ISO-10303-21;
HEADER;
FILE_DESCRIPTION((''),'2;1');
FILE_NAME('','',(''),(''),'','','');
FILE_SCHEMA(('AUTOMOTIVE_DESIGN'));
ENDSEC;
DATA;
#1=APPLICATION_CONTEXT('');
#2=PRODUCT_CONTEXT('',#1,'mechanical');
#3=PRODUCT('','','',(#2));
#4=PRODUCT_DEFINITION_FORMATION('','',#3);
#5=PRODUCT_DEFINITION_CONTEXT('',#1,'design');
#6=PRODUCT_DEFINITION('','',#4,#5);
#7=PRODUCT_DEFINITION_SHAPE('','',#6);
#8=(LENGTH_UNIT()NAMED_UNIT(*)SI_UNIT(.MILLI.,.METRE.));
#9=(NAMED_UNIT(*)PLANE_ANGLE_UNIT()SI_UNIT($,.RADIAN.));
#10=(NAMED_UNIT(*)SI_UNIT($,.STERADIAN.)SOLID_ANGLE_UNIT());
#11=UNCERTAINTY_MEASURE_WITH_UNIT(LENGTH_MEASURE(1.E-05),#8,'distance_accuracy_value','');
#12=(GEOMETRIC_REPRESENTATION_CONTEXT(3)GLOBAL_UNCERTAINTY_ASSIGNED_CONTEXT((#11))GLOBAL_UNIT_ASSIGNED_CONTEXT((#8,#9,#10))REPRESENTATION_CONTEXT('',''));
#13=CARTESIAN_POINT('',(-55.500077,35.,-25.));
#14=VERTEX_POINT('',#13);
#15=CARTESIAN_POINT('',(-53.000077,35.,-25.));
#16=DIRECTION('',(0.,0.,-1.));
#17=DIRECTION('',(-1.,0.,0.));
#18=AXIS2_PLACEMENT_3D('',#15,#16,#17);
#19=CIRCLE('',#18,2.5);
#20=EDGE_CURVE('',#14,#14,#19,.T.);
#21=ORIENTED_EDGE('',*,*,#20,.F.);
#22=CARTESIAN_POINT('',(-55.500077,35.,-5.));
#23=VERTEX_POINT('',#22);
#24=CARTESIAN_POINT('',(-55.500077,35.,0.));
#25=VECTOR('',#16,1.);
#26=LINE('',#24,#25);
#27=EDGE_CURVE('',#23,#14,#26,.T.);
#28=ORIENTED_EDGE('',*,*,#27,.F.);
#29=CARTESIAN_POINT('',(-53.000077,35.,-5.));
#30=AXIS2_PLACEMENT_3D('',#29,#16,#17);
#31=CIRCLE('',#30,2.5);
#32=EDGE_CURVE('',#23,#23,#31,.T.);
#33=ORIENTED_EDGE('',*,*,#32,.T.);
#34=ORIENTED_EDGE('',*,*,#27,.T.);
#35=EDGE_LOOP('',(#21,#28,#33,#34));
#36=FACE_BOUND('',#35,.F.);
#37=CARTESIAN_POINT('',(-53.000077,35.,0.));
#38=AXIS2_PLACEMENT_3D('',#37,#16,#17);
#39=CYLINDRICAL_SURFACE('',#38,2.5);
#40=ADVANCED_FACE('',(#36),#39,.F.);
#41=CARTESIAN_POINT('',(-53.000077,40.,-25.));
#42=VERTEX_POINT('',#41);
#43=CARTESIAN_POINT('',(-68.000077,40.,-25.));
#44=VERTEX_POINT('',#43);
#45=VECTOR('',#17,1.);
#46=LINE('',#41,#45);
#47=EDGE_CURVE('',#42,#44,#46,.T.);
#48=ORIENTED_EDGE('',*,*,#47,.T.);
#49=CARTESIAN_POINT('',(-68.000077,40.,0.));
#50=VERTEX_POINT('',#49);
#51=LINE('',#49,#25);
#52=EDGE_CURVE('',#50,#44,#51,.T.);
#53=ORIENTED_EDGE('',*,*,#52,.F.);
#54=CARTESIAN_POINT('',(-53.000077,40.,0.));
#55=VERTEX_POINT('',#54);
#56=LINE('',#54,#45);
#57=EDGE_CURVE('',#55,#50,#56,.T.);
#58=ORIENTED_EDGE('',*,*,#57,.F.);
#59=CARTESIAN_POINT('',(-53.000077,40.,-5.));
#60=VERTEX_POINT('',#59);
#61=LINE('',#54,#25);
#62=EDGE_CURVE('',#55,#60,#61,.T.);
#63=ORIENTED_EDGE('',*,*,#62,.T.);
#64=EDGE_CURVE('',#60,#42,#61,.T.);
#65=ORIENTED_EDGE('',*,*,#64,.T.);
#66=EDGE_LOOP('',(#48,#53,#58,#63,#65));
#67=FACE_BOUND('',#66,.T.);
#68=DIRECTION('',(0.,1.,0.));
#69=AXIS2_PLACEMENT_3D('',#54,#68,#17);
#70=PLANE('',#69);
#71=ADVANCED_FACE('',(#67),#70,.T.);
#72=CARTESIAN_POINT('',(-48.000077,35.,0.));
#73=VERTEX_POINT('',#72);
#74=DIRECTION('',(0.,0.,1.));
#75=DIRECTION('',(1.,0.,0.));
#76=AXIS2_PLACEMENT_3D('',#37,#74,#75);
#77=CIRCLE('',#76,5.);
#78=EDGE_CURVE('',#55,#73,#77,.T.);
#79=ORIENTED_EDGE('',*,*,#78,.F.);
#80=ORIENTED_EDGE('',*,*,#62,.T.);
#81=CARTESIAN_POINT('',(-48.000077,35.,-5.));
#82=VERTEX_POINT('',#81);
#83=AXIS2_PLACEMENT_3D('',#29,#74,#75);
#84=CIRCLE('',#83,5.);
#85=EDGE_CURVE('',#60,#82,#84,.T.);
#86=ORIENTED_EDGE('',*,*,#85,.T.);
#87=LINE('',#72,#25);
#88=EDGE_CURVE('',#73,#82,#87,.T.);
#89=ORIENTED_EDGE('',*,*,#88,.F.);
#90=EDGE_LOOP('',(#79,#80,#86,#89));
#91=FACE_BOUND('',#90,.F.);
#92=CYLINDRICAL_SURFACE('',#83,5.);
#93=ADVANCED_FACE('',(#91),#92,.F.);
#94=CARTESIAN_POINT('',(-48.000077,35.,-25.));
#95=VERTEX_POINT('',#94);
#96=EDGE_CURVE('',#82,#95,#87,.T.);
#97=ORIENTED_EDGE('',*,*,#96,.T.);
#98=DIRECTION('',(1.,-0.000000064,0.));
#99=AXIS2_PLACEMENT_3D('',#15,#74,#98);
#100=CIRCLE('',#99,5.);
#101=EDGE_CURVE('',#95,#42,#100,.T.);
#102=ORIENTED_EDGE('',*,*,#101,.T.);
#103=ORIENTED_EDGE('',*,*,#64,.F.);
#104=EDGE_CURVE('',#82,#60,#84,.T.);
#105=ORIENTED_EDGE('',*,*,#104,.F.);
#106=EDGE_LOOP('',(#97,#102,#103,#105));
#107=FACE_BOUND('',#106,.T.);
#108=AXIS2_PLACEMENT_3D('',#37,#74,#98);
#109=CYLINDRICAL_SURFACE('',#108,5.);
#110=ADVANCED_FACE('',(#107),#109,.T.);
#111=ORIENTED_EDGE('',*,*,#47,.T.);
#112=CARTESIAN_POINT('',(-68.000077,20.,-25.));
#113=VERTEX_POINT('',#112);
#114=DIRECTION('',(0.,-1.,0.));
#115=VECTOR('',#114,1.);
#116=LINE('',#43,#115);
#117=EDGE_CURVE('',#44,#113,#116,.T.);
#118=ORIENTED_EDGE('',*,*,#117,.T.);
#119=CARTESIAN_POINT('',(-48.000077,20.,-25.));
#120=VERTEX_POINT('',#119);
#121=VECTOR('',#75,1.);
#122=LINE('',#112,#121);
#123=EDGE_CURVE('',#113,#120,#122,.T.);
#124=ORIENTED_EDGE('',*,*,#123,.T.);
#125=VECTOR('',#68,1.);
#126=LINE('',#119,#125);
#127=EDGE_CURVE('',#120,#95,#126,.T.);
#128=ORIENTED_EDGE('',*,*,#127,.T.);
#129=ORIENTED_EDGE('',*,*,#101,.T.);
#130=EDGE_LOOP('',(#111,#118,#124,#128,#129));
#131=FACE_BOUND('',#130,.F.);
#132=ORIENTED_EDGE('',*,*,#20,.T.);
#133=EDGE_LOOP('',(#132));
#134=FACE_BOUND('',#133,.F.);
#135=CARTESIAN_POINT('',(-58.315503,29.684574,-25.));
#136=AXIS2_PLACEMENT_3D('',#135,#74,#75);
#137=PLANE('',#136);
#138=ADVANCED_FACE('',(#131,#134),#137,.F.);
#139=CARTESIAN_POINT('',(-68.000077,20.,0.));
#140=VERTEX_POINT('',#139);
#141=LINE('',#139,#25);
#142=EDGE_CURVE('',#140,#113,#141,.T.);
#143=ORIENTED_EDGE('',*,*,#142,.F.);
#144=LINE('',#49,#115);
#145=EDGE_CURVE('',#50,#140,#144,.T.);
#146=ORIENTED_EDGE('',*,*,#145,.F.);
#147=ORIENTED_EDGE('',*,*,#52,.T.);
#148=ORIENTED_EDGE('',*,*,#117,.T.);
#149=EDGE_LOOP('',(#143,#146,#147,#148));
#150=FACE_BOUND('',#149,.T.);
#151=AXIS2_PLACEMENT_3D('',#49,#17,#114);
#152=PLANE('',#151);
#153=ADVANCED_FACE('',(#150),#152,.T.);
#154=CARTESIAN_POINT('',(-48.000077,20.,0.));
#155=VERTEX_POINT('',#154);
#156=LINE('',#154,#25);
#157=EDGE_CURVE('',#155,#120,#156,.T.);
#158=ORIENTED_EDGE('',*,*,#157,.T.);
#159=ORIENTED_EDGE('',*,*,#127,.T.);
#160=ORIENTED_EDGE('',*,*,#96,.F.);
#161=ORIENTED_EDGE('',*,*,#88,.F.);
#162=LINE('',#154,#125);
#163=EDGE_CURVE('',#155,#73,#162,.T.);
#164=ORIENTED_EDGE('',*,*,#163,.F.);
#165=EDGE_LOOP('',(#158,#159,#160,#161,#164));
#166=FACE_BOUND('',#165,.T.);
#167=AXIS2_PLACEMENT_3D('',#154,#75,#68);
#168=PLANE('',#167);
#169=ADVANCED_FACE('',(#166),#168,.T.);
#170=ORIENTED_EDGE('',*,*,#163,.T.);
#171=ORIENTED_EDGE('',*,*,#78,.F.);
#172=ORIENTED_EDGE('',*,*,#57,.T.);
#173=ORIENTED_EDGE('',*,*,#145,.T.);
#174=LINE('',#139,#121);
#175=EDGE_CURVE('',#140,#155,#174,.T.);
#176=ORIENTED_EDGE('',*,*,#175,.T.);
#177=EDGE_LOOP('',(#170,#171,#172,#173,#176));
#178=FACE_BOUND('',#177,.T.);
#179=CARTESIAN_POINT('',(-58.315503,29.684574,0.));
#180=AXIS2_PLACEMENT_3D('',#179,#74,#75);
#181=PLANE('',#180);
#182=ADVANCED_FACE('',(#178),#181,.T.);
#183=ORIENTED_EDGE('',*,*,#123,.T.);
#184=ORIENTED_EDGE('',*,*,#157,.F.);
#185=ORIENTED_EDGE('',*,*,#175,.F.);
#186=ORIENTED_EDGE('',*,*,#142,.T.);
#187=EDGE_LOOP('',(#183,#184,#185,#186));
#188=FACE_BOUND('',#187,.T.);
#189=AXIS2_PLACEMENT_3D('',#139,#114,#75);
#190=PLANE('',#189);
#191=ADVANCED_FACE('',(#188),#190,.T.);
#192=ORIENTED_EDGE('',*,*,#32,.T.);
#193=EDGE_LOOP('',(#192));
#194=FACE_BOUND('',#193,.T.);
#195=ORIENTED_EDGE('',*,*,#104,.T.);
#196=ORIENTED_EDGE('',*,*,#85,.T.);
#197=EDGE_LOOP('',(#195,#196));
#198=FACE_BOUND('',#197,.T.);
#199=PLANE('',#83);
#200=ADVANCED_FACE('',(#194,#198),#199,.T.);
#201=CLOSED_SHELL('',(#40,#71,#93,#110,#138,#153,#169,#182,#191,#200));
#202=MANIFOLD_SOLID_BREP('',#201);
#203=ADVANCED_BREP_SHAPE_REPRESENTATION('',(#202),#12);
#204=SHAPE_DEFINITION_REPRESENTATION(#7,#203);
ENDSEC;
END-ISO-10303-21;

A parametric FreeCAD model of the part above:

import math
import FreeCAD as App
import Part
import Sketcher
Q = App.Units.Quantity

doc = App.newDocument("Part")
body = doc.addObject("PartDesign::Body", "Body")

# Sketch on XY plane
sketch1 = body.newObject("Sketcher::SketchObject", "Sketch")
sketch1.AttachmentSupport = (doc.getObject("XY_Plane"), [""])
sketch1.MapMode = "FlatFace"
sketch1.addGeometry([
    Part.LineSegment(App.Vector(-53, 40, 0), App.Vector(-68, 40, 0)),  # 0
    Part.LineSegment(App.Vector(-68, 40, 0), App.Vector(-68, 20, 0)),  # 1
    Part.LineSegment(App.Vector(-68, 20, 0), App.Vector(-48, 20, 0)),  # 2
    Part.LineSegment(App.Vector(-48, 20, 0), App.Vector(-48, 35, 0)),  # 3
    Part.ArcOfCircle(Part.Circle(App.Vector(-53, 35, 0), App.Vector(0, 0, 1), 5), math.radians(0), math.radians(90)),  # 4
], False)
sketch1.addConstraint([
    Sketcher.Constraint("Coincident", 0, 2, 1, 1),
    Sketcher.Constraint("Coincident", 1, 2, 2, 1),
    Sketcher.Constraint("Coincident", 2, 2, 3, 1),
    Sketcher.Constraint("Tangent", 3, 2, 4, 1),
    Sketcher.Constraint("Tangent", 4, 2, 0, 1),
    Sketcher.Constraint("Horizontal", 0),
    Sketcher.Constraint("Vertical", 1),
    Sketcher.Constraint("Horizontal", 2),
    Sketcher.Constraint("Vertical", 3),
    Sketcher.Constraint("Equal", 2, 1),
    Sketcher.Constraint("Radius", 4, Q("5 mm")),
    Sketcher.Constraint("DistanceX", 0, 2, 0, 1, Q("15 mm")),
    Sketcher.Constraint("DistanceY", -1, 1, 4, 3, Q("35 mm")),
    Sketcher.Constraint("DistanceX", 4, 3, -1, 1, Q("53.000077 mm")),
])
pad1 = body.newObject("PartDesign::Pad", "Pad")
pad1.Profile = sketch1
pad1.Length = 25
pad1.Reversed = True

# Sketch on XY plane
sketch2 = body.newObject("Sketcher::SketchObject", "Sketch001")
sketch2.AttachmentSupport = (doc.getObject("XY_Plane"), [""])
sketch2.MapMode = "FlatFace"
sketch2.addGeometry(Part.Circle(App.Vector(-53, 35, 0), App.Vector(0, 0, 1), 2.5), False)
sketch2.addConstraint([
    Sketcher.Constraint("Diameter", 0, Q("5 mm")),
    Sketcher.Constraint("DistanceY", -1, 1, 0, 3, Q("35 mm")),
    Sketcher.Constraint("DistanceX", 0, 3, -1, 1, Q("53.000077 mm")),
])
doc.recompute()
hole = body.newObject("PartDesign::Hole", "Hole")
hole.Profile = sketch2
hole.ThreadType = "None"
hole.Diameter = 5
hole.DepthType = "ThroughAll"
hole.HoleCutType = "Counterbore"
hole.HoleCutDiameter = 10
hole.HoleCutDepth = 5

doc.recompute()
